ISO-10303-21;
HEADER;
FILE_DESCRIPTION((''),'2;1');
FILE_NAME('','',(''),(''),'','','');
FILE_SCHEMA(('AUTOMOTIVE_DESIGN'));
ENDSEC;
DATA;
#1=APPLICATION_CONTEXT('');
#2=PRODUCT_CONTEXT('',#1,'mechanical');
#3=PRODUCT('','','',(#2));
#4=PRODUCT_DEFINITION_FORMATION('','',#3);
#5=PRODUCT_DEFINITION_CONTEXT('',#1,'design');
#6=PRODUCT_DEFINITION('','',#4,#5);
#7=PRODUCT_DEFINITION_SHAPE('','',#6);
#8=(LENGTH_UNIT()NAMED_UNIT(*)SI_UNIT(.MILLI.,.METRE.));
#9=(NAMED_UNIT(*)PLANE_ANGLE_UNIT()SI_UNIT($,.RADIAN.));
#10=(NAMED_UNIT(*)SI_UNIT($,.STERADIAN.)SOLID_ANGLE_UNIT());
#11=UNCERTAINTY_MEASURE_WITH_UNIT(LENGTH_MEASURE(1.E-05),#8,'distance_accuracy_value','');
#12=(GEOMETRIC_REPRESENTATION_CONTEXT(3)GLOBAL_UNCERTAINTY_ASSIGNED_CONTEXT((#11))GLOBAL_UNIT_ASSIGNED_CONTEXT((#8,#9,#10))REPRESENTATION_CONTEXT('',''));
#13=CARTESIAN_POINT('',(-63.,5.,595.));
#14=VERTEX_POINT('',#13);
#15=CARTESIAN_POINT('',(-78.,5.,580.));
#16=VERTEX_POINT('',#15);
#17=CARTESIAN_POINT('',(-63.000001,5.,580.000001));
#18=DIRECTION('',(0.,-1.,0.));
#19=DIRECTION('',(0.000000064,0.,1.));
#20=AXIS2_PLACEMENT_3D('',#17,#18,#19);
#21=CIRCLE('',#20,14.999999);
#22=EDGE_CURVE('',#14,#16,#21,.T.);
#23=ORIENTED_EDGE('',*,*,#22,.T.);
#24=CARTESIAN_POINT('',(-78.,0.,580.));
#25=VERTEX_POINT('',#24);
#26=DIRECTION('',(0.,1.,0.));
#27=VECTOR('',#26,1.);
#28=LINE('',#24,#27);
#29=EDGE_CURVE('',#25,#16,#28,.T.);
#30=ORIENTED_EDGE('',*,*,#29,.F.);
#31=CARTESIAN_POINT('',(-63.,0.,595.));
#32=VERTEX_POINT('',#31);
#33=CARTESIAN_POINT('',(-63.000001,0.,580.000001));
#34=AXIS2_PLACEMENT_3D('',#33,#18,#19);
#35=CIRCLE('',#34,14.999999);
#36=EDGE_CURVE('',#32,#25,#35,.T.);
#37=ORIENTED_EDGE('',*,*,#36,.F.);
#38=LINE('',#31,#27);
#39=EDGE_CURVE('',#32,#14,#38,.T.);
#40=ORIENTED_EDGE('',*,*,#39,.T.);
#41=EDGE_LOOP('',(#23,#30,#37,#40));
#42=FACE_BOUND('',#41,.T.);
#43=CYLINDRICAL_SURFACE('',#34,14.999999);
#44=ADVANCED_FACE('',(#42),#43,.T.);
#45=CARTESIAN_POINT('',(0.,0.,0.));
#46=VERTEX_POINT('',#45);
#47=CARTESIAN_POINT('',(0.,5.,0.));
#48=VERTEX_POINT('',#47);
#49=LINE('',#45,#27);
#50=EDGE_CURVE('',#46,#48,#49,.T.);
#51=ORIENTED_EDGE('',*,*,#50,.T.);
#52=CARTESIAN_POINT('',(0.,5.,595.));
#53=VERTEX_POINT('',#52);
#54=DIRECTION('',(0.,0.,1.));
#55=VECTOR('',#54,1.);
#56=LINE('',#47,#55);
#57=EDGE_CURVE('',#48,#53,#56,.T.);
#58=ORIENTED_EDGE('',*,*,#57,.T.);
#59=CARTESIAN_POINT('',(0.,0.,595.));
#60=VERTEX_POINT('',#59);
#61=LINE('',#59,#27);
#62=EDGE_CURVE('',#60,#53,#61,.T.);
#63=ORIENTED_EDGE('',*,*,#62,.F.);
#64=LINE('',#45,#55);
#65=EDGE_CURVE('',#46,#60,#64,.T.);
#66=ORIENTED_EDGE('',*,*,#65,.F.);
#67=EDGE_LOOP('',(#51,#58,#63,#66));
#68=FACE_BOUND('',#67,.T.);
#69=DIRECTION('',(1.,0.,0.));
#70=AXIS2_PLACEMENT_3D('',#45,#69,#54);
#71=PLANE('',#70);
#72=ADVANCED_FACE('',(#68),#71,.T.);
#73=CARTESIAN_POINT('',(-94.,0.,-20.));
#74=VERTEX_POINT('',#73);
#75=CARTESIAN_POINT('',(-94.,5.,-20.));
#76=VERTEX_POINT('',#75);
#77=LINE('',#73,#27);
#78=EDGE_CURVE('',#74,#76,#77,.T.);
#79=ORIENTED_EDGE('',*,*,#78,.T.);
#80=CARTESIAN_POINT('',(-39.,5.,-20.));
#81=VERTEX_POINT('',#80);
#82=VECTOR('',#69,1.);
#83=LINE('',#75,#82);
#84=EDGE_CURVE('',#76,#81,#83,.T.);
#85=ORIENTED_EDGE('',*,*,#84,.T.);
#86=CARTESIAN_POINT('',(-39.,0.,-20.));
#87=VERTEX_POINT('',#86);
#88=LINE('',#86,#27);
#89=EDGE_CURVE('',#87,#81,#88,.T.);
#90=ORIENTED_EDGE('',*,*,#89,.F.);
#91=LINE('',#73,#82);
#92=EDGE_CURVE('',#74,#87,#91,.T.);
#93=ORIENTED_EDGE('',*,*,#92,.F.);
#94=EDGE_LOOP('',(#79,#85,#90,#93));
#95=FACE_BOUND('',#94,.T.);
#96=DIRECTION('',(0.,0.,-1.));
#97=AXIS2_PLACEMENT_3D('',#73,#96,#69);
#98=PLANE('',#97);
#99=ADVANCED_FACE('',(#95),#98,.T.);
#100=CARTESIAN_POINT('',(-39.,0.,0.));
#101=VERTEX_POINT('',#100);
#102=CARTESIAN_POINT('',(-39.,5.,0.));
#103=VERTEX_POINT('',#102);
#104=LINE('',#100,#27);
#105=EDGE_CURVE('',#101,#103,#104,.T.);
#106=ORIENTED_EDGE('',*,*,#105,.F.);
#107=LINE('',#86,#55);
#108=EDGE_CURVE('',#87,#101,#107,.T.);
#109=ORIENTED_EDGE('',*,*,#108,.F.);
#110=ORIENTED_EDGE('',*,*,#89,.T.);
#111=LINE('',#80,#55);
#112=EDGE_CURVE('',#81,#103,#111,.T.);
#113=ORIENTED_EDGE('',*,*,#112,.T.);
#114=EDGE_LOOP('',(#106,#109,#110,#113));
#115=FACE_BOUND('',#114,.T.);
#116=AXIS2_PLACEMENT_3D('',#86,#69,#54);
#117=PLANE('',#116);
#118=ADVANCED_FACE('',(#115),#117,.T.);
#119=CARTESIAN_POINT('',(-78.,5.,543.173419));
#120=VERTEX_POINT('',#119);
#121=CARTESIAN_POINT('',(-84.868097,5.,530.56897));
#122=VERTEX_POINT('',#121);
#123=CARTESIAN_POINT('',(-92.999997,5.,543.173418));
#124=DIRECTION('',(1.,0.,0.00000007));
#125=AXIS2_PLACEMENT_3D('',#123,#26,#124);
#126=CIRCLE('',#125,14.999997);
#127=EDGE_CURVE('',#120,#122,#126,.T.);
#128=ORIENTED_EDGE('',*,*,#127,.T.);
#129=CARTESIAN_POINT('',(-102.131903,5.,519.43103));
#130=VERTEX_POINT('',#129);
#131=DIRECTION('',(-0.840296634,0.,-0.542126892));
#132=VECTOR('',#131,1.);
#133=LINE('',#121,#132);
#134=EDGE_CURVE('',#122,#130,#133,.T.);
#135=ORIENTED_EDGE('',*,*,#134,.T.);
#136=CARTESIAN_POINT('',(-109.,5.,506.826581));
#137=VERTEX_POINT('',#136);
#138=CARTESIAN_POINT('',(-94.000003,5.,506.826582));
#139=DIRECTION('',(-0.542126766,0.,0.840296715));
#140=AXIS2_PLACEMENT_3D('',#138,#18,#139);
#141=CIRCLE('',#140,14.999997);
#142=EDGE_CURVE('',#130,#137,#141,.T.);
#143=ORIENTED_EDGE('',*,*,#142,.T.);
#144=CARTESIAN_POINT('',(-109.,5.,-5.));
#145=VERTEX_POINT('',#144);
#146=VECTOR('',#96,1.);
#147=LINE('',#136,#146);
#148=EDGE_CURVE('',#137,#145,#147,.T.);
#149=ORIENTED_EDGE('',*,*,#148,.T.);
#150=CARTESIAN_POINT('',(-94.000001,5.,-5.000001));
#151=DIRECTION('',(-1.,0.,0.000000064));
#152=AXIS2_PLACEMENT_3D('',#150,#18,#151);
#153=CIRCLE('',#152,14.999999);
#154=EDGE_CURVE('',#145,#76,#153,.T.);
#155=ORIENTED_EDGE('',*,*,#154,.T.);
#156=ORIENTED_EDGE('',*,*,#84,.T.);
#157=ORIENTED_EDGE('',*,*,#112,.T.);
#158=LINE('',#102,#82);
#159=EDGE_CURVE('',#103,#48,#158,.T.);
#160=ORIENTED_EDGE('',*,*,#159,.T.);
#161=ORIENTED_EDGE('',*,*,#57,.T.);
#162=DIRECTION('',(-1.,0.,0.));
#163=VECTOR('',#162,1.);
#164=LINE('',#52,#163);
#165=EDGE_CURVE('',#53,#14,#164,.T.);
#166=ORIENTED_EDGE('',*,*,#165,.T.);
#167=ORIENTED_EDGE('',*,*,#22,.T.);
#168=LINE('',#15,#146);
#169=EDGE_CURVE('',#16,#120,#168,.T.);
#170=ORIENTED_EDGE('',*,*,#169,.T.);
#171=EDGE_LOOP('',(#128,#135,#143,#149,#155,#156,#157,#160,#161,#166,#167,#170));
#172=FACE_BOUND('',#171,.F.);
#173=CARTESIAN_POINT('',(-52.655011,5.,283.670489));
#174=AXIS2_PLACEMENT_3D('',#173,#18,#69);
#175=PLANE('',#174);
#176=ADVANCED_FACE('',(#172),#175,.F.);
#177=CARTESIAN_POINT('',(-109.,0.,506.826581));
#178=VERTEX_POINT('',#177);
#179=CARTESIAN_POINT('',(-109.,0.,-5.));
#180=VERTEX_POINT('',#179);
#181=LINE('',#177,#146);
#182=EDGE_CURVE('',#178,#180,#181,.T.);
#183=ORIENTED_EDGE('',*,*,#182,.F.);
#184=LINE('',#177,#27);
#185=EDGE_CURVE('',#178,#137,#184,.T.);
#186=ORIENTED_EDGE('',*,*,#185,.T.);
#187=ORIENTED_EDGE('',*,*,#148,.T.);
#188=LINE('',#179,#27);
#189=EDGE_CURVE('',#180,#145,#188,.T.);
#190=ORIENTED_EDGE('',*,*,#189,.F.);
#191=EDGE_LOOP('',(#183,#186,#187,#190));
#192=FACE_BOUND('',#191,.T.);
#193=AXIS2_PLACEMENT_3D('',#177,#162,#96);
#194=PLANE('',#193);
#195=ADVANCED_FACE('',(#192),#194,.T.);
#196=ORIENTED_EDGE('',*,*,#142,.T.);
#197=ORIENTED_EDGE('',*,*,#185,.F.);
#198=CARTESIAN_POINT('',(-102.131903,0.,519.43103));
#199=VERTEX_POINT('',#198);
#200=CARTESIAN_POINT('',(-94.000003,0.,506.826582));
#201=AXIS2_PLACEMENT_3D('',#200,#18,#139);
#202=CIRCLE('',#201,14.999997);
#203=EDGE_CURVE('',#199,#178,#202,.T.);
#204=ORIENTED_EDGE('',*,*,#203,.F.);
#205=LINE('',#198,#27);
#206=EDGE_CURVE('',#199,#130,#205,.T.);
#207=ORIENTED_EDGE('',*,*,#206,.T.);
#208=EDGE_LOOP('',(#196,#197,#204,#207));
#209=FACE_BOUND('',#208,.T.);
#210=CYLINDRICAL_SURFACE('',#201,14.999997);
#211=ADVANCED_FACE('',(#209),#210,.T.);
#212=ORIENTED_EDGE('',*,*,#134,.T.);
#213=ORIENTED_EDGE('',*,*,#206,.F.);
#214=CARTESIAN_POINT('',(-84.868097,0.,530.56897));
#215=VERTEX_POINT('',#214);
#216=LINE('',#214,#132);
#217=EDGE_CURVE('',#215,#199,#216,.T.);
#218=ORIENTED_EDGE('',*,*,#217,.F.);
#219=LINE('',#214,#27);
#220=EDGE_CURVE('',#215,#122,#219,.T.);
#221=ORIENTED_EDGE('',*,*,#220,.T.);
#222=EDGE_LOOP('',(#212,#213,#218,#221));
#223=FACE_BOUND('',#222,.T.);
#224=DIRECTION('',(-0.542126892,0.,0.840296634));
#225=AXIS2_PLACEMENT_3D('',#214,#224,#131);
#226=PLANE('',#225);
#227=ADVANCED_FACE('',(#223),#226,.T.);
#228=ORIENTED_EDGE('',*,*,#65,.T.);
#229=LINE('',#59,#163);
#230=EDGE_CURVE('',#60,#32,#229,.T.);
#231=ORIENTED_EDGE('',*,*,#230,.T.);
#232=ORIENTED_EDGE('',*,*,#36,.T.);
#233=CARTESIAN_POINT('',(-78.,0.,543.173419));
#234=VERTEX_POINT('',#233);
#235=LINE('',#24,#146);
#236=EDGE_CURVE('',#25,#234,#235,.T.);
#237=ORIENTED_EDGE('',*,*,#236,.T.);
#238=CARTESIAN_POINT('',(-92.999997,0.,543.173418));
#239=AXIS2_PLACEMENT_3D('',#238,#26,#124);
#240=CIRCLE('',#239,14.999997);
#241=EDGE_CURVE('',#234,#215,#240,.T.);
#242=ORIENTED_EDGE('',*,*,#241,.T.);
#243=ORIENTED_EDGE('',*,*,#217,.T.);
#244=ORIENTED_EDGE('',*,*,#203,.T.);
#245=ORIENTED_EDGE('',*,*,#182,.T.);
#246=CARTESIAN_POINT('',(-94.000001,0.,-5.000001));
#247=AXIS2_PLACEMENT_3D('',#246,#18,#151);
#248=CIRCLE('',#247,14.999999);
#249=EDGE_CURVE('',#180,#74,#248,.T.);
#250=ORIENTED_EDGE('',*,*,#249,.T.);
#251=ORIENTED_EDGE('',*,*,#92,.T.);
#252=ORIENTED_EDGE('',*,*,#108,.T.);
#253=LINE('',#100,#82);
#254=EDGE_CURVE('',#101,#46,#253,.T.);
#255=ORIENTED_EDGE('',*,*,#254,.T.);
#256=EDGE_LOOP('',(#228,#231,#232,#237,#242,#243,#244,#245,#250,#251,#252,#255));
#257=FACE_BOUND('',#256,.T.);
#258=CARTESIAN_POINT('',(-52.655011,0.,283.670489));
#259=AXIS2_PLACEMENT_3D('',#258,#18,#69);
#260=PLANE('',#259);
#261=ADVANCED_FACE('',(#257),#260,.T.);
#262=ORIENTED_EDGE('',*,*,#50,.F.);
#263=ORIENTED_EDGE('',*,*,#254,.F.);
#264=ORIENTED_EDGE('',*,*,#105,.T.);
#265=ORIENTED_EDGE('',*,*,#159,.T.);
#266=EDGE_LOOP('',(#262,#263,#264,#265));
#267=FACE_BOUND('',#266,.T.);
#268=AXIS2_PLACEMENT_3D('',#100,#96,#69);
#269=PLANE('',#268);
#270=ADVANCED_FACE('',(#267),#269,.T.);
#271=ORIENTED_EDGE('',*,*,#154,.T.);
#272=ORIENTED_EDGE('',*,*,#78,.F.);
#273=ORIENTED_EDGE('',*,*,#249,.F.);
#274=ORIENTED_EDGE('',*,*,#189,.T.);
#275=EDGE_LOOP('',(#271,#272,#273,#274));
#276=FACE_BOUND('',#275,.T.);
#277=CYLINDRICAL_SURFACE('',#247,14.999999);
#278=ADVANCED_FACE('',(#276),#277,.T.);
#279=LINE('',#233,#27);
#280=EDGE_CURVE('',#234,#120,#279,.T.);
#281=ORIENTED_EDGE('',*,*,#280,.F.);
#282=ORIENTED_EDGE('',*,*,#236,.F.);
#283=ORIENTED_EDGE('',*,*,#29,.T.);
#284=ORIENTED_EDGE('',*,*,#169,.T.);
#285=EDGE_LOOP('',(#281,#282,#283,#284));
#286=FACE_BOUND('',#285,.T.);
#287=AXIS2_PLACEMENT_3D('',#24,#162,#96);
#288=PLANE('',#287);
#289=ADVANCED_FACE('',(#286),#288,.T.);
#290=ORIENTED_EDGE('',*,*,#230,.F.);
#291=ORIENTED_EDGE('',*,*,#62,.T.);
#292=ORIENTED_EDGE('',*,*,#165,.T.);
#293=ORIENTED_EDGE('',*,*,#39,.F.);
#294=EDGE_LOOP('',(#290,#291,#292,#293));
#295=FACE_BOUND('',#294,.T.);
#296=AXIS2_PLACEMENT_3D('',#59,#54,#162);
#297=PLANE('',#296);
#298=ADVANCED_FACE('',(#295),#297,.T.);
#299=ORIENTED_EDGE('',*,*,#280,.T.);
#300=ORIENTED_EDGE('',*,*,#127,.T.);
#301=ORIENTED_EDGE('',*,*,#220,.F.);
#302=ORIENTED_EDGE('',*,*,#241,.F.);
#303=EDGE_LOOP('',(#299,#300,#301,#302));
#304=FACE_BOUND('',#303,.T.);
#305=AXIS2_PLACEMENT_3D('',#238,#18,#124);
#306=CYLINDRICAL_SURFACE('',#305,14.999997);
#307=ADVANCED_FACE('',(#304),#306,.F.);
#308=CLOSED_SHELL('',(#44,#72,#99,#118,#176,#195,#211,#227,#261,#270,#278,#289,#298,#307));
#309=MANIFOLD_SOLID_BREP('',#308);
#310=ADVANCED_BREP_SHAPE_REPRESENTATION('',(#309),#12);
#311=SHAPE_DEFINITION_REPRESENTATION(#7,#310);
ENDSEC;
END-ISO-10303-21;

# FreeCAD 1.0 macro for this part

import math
import FreeCAD as App
import Part
import Sketcher
from FreeCAD import Vector
Q = App.Units.Quantity

doc = App.newDocument("Part")
body = doc.addObject("PartDesign::Body", "Body")

# Sketch on XZ plane
sketch1 = doc.addObject("Sketcher::SketchObject", "Sketch")
body.addObject(sketch1)
sketch1.AttachmentSupport = (doc.XZ_Plane, [""])
sketch1.MapMode = "FlatFace"
sketch1.addGeometry(Part.LineSegment(Vector(-39, 0, 0), Vector(0, 0, 0)), False)
sketch1.addGeometry(Part.LineSegment(Vector(0, 0, 0), Vector(0, 595, 0)), False)
sketch1.addGeometry(Part.LineSegment(Vector(0, 595, 0), Vector(-63, 595, 0)), False)
sketch1.addGeometry(Part.ArcOfCircle(Part.Circle(Vector(-63, 580, 0), Vector(0, 0, 1), 15), math.radians(90), math.radians(180)), False)
sketch1.addGeometry(Part.LineSegment(Vector(-78, 580, 0), Vector(-78, 543, 0)), False)
sketch1.addGeometry(Part.ArcOfCircle(Part.Circle(Vector(-93, 543, 0), Vector(0, 0, 1), 15), math.radians(-57), math.radians(0)), False)
sketch1.addGeometry(Part.LineSegment(Vector(-85, 531, 0), Vector(-102, 519, 0)), False)
sketch1.addGeometry(Part.ArcOfCircle(Part.Circle(Vector(-94, 507, 0), Vector(0, 0, 1), 15), math.radians(123), math.radians(180)), False)
sketch1.addGeometry(Part.LineSegment(Vector(-109, 507, 0), Vector(-109, -5, 0)), False)
sketch1.addGeometry(Part.ArcOfCircle(Part.Circle(Vector(-94, -5, 0), Vector(0, 0, 1), 15), math.radians(180), math.radians(270)), False)
sketch1.addGeometry(Part.LineSegment(Vector(-94, -20, 0), Vector(-39, -20, 0)), False)
sketch1.addGeometry(Part.LineSegment(Vector(-39, -20, 0), Vector(-39, 0, 0)), False)
sketch1.addConstraint(Sketcher.Constraint("Coincident", 0, 2, 1, 1))
sketch1.addConstraint(Sketcher.Constraint("Coincident", 1, 2, 2, 1))
sketch1.addConstraint(Sketcher.Constraint("Tangent", 2, 2, 3, 1))
sketch1.addConstraint(Sketcher.Constraint("Tangent", 3, 2, 4, 1))
sketch1.addConstraint(Sketcher.Constraint("Tangent", 4, 2, 5, 2))
sketch1.addConstraint(Sketcher.Constraint("Tangent", 5, 1, 6, 1))
sketch1.addConstraint(Sketcher.Constraint("Tangent", 6, 2, 7, 1))
sketch1.addConstraint(Sketcher.Constraint("Tangent", 7, 2, 8, 1))
sketch1.addConstraint(Sketcher.Constraint("Tangent", 8, 2, 9, 1))
sketch1.addConstraint(Sketcher.Constraint("Tangent", 9, 2, 10, 1))
sketch1.addConstraint(Sketcher.Constraint("Coincident", 10, 2, 11, 1))
sketch1.addConstraint(Sketcher.Constraint("Coincident", 11, 2, 0, 1))
sketch1.addConstraint(Sketcher.Constraint("Horizontal", 0))
sketch1.addConstraint(Sketcher.Constraint("Vertical", 1))
sketch1.addConstraint(Sketcher.Constraint("Horizontal", 2))
sketch1.addConstraint(Sketcher.Constraint("Vertical", 4))
sketch1.addConstraint(Sketcher.Constraint("Vertical", 8))
sketch1.addConstraint(Sketcher.Constraint("Horizontal", 10))
sketch1.addConstraint(Sketcher.Constraint("Vertical", 11))
sketch1.addConstraint(Sketcher.Constraint("Coincident", 0, 2, -1, 1))
sketch1.addConstraint(Sketcher.Constraint("Equal", 5, 7))
sketch1.addConstraint(Sketcher.Constraint("Equal", 3, 9))
sketch1.addConstraint(Sketcher.Constraint("Radius", 3, Q("14.999999 mm")))
sketch1.addConstraint(Sketcher.Constraint("DistanceX", 0, 1, 0, 2, Q("39 mm")))
sketch1.addConstraint(Sketcher.Constraint("DistanceX", 2, 2, 2, 1, Q("63 mm")))
sketch1.addConstraint(Sketcher.Constraint("DistanceX", 10, 1, 10, 2, Q("55 mm")))
sketch1.addConstraint(Sketcher.Constraint("DistanceY", 1, 1, 1, 2, Q("595 mm")))
sketch1.addConstraint(Sketcher.Constraint("DistanceY", 11, 1, 11, 2, Q("20 mm")))
sketch1.addConstraint(Sketcher.Constraint("Radius", 5, Q("14.999997 mm")))
sketch1.addConstraint(Sketcher.Constraint("DistanceY", 4, 2, 4, 1, Q("36.826581 mm")))
sketch1.addConstraint(Sketcher.Constraint("DistanceY", 8, 2, 8, 1, Q("511.826581 mm")))
pad1 = doc.addObject("PartDesign::Pad", "Pad")
body.addObject(pad1)
pad1.Profile = sketch1
pad1.Length = 5
pad1.Reversed = True

doc.recompute()
